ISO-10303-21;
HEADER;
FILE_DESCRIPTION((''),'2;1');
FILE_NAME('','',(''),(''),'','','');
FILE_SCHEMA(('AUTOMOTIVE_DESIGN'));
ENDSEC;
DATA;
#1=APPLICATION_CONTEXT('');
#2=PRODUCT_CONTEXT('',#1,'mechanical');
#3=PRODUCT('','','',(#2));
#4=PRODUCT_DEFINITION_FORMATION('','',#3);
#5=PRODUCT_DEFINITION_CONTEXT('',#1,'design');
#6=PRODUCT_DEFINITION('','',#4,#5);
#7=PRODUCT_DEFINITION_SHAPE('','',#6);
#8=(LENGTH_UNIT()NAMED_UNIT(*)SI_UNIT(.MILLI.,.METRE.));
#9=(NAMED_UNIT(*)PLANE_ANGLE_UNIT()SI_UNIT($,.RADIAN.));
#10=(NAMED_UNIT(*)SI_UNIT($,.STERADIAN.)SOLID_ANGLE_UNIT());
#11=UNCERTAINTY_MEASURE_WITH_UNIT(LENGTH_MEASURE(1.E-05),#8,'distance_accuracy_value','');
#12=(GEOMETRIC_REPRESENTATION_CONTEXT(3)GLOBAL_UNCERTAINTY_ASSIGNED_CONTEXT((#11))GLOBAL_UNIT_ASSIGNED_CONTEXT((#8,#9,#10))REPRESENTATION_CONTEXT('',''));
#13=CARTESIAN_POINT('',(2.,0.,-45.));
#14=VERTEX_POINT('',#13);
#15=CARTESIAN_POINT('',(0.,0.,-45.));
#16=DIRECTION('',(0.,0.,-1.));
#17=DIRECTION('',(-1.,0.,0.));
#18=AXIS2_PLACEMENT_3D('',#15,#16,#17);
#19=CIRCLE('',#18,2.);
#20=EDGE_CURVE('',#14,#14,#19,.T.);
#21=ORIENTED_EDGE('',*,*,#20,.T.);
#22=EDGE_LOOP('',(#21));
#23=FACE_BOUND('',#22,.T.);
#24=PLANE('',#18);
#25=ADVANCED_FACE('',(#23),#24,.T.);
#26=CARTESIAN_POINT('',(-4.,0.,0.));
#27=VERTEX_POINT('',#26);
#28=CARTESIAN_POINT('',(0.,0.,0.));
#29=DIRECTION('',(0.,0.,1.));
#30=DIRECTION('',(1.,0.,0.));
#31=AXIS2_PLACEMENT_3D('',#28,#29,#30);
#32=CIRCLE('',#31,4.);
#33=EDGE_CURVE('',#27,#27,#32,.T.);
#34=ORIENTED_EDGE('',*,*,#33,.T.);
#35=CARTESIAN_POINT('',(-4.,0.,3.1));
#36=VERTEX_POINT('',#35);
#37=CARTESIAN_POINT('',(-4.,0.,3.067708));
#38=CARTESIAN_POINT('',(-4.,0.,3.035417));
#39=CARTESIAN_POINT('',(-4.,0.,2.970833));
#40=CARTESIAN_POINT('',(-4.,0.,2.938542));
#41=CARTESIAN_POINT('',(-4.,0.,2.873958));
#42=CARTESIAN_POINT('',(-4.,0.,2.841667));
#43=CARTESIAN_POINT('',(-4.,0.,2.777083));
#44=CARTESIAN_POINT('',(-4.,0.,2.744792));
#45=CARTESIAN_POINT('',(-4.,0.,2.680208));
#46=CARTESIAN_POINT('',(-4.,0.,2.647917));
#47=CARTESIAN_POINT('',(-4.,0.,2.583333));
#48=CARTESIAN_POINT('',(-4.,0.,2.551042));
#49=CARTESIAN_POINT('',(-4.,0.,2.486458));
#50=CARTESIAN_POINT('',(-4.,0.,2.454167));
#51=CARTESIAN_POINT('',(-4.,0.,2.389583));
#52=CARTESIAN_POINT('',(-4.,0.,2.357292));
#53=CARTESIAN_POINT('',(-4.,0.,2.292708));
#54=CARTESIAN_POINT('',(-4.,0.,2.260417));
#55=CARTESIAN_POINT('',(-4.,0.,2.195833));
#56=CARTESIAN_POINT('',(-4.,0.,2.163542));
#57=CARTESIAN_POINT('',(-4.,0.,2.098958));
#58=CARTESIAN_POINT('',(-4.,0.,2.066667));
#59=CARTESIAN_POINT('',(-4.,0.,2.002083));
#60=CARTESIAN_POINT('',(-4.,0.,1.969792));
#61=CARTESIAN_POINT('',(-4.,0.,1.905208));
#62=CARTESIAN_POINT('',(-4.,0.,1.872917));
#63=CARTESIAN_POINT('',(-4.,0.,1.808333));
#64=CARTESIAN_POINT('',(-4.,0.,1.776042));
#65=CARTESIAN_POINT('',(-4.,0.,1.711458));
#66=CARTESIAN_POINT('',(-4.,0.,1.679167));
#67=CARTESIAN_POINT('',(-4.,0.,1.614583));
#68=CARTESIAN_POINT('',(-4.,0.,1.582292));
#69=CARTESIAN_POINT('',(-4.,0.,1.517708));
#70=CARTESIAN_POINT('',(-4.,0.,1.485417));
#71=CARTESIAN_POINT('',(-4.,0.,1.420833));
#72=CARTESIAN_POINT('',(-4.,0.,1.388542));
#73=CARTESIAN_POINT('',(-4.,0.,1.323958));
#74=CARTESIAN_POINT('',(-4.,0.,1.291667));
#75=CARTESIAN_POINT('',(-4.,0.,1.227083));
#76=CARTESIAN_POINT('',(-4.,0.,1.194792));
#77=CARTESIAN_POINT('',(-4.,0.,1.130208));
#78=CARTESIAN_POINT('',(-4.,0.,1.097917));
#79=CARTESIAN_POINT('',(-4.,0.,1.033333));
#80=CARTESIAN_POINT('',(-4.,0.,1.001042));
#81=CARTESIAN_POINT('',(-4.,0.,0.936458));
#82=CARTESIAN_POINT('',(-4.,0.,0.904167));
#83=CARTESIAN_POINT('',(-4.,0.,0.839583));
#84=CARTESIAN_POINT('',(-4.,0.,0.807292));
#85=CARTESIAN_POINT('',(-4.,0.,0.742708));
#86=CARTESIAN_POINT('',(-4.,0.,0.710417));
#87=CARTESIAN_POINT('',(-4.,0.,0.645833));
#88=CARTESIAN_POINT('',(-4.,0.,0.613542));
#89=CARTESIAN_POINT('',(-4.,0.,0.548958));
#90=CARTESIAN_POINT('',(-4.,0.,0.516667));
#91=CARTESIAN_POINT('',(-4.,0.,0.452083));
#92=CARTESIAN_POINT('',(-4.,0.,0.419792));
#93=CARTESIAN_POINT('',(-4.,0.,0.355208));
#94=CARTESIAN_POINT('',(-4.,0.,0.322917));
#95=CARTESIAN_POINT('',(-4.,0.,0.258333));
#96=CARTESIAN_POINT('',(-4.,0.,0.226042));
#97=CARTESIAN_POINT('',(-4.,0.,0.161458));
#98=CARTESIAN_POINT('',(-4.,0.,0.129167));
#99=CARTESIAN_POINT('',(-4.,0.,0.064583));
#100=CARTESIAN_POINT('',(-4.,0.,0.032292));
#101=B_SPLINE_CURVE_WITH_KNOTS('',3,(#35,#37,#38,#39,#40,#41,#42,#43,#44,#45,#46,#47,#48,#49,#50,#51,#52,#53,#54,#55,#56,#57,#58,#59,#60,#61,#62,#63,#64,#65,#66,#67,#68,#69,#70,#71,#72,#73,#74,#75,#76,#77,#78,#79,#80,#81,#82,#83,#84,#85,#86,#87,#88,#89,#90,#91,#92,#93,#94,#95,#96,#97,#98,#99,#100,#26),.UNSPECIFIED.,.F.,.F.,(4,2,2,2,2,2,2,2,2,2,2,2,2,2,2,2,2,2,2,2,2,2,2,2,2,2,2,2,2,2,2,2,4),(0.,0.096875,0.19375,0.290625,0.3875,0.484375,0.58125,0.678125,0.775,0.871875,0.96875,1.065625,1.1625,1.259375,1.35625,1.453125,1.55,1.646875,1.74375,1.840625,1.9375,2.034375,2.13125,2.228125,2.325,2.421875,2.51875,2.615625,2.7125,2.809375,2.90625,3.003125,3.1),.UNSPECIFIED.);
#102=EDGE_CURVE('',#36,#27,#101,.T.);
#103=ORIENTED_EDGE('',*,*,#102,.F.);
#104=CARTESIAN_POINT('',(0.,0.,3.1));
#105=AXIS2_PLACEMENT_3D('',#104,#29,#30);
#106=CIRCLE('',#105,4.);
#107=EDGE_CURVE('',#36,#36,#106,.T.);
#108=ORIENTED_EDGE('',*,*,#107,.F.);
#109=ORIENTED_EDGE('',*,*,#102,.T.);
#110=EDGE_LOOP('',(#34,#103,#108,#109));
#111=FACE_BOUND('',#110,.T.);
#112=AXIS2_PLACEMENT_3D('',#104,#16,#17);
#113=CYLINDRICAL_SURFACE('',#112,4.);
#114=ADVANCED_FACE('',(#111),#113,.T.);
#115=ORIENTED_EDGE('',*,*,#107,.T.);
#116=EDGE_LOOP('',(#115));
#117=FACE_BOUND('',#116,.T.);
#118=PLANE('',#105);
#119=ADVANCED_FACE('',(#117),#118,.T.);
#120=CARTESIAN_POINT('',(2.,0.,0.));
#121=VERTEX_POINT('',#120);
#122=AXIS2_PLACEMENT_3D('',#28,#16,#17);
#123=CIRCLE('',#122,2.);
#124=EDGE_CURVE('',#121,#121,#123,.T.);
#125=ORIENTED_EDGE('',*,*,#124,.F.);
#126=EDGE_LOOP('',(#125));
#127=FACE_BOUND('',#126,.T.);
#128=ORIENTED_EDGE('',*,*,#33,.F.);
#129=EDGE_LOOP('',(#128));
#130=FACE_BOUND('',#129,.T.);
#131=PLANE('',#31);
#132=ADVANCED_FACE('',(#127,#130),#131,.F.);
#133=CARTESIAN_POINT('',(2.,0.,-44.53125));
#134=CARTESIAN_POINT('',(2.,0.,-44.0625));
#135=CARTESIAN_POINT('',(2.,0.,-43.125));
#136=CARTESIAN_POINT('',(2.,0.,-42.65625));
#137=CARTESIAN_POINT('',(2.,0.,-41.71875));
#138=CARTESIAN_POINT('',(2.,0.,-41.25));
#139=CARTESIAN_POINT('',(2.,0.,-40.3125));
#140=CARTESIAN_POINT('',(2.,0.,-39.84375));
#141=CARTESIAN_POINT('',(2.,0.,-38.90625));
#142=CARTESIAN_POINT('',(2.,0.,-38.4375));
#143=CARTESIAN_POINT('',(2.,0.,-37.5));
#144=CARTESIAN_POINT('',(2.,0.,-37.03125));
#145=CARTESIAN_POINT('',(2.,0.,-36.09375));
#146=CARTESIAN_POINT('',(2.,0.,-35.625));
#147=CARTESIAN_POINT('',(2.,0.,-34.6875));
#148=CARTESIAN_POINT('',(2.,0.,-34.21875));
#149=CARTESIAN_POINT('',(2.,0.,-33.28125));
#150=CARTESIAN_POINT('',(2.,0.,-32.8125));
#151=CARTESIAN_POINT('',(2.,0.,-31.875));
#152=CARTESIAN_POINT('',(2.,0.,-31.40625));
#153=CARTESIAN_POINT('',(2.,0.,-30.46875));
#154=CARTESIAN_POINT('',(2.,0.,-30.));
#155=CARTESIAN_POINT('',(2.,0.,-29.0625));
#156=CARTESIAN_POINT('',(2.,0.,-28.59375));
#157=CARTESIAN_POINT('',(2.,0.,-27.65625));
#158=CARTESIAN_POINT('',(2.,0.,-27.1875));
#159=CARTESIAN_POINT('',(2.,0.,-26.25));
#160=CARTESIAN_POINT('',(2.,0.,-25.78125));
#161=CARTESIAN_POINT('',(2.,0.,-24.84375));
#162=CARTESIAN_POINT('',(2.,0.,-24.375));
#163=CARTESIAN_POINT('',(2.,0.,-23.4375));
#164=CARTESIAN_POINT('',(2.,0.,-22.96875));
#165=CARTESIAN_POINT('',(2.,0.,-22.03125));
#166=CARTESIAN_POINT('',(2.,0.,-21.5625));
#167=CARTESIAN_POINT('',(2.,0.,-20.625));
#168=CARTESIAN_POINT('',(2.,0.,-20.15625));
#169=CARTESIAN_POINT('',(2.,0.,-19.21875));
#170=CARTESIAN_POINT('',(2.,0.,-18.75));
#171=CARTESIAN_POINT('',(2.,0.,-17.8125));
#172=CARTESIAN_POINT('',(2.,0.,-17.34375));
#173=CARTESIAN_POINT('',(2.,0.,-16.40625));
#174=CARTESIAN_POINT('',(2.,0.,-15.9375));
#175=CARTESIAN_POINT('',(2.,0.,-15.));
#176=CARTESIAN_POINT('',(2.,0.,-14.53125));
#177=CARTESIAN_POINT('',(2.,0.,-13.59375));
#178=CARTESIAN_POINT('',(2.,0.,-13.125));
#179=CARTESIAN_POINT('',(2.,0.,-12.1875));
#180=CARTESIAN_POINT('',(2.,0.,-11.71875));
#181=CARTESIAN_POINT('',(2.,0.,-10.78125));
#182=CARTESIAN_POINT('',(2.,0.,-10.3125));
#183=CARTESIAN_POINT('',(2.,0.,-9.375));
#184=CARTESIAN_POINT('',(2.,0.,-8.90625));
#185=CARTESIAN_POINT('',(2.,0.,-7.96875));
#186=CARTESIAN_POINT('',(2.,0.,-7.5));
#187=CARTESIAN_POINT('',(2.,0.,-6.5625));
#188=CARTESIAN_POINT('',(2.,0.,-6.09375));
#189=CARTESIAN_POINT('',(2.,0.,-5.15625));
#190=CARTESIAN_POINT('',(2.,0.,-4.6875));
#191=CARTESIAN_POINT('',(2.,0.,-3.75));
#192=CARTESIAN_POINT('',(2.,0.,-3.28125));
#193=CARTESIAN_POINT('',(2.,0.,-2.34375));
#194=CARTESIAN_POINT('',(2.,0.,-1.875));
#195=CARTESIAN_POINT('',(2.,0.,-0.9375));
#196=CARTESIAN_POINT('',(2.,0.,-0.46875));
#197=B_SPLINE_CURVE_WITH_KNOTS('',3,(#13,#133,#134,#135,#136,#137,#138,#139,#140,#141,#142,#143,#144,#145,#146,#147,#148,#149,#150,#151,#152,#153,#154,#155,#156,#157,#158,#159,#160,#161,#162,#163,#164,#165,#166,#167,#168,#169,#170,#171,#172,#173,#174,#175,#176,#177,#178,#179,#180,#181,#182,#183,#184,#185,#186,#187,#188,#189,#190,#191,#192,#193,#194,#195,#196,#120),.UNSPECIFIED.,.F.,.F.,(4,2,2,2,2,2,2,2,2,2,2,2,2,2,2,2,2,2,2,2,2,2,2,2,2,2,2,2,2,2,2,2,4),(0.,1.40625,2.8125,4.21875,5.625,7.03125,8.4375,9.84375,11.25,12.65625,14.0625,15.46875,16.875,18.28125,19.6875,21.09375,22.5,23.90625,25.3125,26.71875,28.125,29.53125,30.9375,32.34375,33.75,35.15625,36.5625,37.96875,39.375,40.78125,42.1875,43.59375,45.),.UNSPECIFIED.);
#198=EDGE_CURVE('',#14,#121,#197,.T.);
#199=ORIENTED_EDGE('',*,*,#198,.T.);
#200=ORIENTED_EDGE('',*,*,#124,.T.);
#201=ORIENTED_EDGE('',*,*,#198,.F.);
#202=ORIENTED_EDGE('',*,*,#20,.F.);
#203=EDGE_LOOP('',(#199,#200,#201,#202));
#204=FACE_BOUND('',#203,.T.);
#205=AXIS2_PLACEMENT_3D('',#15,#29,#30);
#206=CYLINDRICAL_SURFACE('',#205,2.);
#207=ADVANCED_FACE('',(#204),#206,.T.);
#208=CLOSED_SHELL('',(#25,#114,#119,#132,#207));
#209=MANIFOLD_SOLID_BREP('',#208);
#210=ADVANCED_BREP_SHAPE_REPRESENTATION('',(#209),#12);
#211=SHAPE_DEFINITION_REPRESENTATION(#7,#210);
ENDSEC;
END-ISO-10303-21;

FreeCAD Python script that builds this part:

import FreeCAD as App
import Part
import Sketcher
from FreeCAD import Vector

doc = App.newDocument("Part")
params = doc.addObject("Spreadsheet::Sheet", "Params")
for row, (alias, value) in enumerate([
    ("sketch1_diameter", "8 mm"),
    ("pad1_length", "3.1 mm"),
    ("sketch2_diameter", "4 mm"),
    ("pad2_length", "45 mm"),
], start=1):
    params.set(f"A{row}", alias)
    params.set(f"B{row}", "=" + value)
    params.setAlias(f"B{row}", alias)

body = doc.addObject("PartDesign::Body", "Body")

# Sketch on XY plane
sketch1 = doc.addObject("Sketcher::SketchObject", "Sketch")
body.addObject(sketch1)
sketch1.AttachmentSupport = (doc.XY_Plane, [""])
sketch1.MapMode = "FlatFace"
sketch1.addGeometry(Part.Circle(Vector(0, 0, 0), Vector(0, 0, 1), 4), False)
sketch1.addConstraint([
    Sketcher.Constraint("Coincident", 0, 3, -1, 1),
    Sketcher.Constraint("Diameter", 0, 8.0),
])
sketch1.setExpression("Constraints[1]", "Params.sketch1_diameter")
pad1 = doc.addObject("PartDesign::Pad", "Pad")
body.addObject(pad1)
pad1.Profile = sketch1
pad1.setExpression("Length", "Params.pad1_length")

# Sketch on XY plane
sketch2 = doc.addObject("Sketcher::SketchObject", "Sketch001")
body.addObject(sketch2)
sketch2.AttachmentSupport = (doc.XY_Plane, [""])
sketch2.MapMode = "FlatFace"
sketch2.addGeometry(Part.Circle(Vector(0, 0, 0), Vector(0, 0, 1), 2), False)
sketch2.addConstraint([
    Sketcher.Constraint("Coincident", 0, 3, -1, 1),
    Sketcher.Constraint("Diameter", 0, 4.0),
])
sketch2.setExpression("Constraints[1]", "Params.sketch2_diameter")
pad2 = doc.addObject("PartDesign::Pad", "Pad001")
body.addObject(pad2)
pad2.Profile = sketch2
pad2.setExpression("Length", "Params.pad2_length")
pad2.Reversed = True

doc.recompute()
